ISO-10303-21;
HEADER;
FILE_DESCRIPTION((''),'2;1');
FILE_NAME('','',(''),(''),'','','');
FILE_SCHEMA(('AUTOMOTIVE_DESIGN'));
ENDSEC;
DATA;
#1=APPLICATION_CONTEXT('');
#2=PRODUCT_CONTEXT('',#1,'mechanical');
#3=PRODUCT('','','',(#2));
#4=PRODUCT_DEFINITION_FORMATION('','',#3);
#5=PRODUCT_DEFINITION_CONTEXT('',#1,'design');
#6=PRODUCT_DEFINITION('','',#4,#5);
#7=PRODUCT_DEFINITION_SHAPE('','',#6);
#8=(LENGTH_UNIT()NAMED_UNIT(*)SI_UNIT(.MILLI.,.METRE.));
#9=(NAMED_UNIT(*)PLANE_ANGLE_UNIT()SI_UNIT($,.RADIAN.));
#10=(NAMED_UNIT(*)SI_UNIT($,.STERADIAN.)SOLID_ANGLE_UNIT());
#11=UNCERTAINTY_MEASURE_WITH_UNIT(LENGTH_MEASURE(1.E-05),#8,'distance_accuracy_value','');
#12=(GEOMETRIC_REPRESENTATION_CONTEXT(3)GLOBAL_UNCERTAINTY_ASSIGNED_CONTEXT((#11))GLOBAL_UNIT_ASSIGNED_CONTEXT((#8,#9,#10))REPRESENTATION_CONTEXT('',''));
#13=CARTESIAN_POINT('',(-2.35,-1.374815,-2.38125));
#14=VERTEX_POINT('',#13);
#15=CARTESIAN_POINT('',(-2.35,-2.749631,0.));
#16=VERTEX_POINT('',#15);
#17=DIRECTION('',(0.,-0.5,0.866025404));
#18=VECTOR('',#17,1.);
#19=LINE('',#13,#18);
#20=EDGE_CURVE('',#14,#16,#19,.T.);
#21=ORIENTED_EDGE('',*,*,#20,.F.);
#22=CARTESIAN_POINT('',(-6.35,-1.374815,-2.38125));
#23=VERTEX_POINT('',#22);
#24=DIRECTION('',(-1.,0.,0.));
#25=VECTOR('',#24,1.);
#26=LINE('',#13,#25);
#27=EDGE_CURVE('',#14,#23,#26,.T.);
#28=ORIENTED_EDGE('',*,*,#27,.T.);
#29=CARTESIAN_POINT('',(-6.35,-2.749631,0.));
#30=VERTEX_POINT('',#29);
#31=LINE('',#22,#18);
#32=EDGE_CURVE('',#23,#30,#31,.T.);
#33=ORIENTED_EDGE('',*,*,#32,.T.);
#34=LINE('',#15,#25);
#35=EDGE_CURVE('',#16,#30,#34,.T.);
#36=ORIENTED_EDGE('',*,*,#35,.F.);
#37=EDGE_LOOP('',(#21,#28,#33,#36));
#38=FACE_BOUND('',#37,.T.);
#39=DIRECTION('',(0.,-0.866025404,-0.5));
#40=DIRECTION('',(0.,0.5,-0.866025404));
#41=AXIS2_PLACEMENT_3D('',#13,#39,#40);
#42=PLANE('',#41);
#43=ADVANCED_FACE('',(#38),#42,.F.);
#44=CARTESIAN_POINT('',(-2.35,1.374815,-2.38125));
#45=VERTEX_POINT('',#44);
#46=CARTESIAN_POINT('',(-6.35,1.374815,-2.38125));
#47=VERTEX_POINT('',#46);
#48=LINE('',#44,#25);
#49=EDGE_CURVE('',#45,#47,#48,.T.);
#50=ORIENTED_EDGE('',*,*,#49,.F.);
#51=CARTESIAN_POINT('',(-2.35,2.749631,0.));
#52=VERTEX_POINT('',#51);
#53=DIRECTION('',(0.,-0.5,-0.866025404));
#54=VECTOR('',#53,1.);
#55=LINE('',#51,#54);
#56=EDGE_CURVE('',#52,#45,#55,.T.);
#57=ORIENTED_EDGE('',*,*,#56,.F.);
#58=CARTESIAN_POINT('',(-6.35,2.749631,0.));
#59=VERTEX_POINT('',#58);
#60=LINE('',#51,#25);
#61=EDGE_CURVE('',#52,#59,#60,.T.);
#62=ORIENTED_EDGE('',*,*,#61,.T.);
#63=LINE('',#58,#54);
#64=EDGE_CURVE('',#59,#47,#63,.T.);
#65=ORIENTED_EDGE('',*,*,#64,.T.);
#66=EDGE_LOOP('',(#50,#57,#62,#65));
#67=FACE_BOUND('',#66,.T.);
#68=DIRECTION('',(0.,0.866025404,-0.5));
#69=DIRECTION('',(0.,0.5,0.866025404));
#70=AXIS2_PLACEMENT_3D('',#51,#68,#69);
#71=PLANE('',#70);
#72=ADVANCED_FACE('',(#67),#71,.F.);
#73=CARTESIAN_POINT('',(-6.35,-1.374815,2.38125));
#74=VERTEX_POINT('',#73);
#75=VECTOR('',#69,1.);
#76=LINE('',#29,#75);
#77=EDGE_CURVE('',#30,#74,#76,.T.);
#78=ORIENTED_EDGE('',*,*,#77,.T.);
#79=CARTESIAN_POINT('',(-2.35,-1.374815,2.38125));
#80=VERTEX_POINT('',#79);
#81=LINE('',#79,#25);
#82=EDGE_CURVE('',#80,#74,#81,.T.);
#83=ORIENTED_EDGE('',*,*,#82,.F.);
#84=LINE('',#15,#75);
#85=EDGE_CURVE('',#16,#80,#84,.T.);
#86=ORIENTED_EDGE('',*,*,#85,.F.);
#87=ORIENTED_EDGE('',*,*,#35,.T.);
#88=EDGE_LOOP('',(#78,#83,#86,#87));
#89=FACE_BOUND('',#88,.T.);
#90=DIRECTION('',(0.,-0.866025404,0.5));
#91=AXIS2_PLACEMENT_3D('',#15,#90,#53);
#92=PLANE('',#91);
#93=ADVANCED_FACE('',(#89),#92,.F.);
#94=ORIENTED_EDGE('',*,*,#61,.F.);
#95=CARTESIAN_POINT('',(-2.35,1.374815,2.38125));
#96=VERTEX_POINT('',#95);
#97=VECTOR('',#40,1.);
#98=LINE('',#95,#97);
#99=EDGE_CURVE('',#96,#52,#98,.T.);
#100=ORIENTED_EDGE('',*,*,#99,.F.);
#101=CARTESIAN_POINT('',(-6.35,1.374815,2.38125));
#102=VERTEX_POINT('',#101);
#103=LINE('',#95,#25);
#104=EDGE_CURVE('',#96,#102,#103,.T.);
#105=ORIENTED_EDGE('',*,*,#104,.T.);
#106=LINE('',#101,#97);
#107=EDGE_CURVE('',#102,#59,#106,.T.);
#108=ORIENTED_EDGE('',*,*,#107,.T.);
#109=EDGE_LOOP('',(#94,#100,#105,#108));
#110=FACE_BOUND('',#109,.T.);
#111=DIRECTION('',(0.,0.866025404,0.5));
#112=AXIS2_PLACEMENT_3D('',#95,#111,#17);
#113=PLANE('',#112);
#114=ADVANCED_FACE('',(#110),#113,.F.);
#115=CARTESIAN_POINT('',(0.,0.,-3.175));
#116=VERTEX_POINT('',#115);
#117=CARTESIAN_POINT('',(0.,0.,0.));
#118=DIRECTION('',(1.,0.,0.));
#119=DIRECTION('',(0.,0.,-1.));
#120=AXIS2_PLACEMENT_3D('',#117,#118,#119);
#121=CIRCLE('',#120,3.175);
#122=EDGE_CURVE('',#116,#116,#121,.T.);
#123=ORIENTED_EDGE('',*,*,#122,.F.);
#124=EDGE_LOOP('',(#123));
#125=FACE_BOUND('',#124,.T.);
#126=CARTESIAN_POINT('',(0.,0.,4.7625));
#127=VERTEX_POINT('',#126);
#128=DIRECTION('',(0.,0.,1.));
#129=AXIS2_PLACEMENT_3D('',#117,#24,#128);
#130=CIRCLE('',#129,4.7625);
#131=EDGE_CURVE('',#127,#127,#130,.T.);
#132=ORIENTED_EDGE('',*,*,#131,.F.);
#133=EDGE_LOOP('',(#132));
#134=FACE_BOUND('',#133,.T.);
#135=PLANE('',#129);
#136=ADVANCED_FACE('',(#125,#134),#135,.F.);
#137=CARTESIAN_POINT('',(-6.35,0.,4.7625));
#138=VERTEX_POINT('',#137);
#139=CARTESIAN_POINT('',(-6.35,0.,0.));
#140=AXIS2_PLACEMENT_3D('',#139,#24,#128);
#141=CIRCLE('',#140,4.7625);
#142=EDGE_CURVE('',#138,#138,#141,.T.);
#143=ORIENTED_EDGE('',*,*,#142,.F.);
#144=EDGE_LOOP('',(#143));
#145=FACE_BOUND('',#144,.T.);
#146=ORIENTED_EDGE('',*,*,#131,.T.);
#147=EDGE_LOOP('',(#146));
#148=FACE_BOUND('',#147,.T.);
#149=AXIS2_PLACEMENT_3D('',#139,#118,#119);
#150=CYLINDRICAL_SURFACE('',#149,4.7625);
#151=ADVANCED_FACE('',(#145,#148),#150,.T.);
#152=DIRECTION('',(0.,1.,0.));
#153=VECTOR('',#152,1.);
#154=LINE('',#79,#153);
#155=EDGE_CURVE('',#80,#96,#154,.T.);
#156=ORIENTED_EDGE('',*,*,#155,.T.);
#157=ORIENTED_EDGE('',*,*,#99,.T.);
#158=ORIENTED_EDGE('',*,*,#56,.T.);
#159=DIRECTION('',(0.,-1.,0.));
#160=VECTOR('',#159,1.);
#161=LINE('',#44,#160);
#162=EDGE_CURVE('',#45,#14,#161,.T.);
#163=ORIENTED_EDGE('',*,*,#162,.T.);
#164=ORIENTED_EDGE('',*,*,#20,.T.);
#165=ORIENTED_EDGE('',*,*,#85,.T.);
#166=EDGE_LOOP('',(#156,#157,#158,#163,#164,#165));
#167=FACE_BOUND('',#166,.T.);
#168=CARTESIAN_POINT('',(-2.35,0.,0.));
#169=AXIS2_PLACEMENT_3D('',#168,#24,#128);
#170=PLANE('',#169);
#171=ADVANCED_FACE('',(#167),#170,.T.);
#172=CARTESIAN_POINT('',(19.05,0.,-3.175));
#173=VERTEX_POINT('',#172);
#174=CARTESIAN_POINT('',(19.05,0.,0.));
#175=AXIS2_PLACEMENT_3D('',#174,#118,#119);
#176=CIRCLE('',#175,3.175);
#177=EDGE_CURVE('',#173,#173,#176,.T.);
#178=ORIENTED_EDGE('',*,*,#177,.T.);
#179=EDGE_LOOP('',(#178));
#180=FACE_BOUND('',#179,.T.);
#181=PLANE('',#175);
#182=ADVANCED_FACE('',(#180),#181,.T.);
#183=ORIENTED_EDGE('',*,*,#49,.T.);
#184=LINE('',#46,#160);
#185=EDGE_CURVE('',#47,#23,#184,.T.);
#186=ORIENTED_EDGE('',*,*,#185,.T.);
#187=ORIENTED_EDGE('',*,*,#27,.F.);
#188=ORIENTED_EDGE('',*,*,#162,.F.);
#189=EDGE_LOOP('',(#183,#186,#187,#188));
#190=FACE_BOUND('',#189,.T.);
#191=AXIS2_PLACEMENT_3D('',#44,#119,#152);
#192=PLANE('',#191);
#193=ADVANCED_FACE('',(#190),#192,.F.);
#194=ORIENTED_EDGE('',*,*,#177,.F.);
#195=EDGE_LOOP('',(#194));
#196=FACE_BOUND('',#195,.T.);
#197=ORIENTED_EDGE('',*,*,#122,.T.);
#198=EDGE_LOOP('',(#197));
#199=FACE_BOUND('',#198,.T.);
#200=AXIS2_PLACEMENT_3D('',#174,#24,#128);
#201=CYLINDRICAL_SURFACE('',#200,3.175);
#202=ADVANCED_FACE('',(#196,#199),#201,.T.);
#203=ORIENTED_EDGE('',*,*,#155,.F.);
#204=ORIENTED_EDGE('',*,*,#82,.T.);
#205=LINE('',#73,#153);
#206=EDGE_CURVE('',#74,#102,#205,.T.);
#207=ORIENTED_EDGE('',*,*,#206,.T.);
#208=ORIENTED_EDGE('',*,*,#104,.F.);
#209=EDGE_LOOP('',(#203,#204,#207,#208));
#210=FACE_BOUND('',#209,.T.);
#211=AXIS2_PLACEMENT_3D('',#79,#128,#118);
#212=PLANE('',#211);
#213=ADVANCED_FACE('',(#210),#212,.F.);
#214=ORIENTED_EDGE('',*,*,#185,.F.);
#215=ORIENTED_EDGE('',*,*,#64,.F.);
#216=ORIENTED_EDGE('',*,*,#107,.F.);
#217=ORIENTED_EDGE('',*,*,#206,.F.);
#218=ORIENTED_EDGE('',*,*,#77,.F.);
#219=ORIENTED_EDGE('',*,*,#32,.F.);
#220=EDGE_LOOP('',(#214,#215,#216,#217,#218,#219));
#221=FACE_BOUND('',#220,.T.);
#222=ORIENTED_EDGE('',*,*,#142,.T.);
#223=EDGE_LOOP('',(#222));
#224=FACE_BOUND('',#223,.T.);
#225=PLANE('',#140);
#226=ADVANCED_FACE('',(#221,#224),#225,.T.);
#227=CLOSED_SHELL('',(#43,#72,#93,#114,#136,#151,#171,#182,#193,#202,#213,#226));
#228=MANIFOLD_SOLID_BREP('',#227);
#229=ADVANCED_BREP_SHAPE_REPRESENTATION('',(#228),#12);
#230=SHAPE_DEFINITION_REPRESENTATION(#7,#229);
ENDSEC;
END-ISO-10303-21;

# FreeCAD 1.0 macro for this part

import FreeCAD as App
import Part
import Sketcher
Q = App.Units.Quantity


def add_polygon(sketch, points):
    """Adds a closed chain of lines whose ends are joined by coincident constraints."""
    first, n = sketch.GeometryCount, len(points)
    for a, b in zip(points, points[1:] + points[:1]):
        sketch.addGeometry(Part.LineSegment(App.Vector(*a, 0), App.Vector(*b, 0)), False)
    for i in range(n):
        sketch.addConstraint(Sketcher.Constraint("Coincident", first + i, 2, first + (i + 1) % n, 1))

doc = App.newDocument("Part")
body = doc.addObject("PartDesign::Body", "Body")

# Sketch on YZ plane
sketch1 = body.newObject("Sketcher::SketchObject", "Sketch")
sketch1.AttachmentSupport = (doc.getObject("YZ_Plane"), [""])
sketch1.MapMode = "FlatFace"
sketch1.addGeometry(Part.Circle(App.Vector(0, 0, 0), App.Vector(0, 0, 1), 3.2), False)
sketch1.addConstraint(Sketcher.Constraint("Coincident", 0, 3, -1, 1))
sketch1.addConstraint(Sketcher.Constraint("Diameter", 0, Q("0.25 in")))
pad1 = body.newObject("PartDesign::Pad", "Pad")
pad1.Profile = sketch1
pad1.Length = Q("0.75 in")

# Sketch on YZ plane
sketch2 = body.newObject("Sketcher::SketchObject", "Sketch001")
sketch2.AttachmentSupport = (doc.getObject("YZ_Plane"), [""])
sketch2.MapMode = "FlatFace"
sketch2.addGeometry(Part.Circle(App.Vector(0, 0, 0), App.Vector(0, 0, 1), 4.8), False)
sketch2.addConstraint(Sketcher.Constraint("Coincident", 0, 3, -1, 1))
sketch2.addConstraint(Sketcher.Constraint("Diameter", 0, Q("0.375 in")))
pad2 = body.newObject("PartDesign::Pad", "Pad001")
pad2.Profile = sketch2
pad2.Length = Q("0.25 in")
pad2.Reversed = True

# Sketch on YZ plane
sketch3 = body.newObject("Sketcher::SketchObject", "Sketch002")
sketch3.AttachmentSupport = (doc.getObject("YZ_Plane"), [""])
sketch3.MapMode = "FlatFace"
sketch3.AttachmentOffset = App.Placement(App.Vector(0, 0, -0.25 * 25.4), App.Rotation())
add_polygon(sketch3, [(-1.4, 2.4), (1.4, 2.4), (2.7, 0), (1.4, -2.4), (-1.4, -2.4), (-2.7, 0)])  # lines 0-5
sketch3.addConstraint(Sketcher.Constraint("Horizontal", 0))
sketch3.addConstraint(Sketcher.Constraint("Horizontal", 3))
sketch3.addConstraint(Sketcher.Constraint("Symmetric", 0, 2, 3, 2, -1, 1))
sketch3.addConstraint(Sketcher.Constraint("Symmetric", 1, 2, 4, 2, -1, 1))
sketch3.addConstraint(Sketcher.Constraint("PointOnObject", 1, 2, -1))
sketch3.addConstraint(Sketcher.Constraint("Parallel", 2, 5))
sketch3.addConstraint(Sketcher.Constraint("Vertical", 0, 2, 2, 2))
sketch3.addConstraint(Sketcher.Constraint("Angle", 1, Q("-60 deg")))
sketch3.addConstraint(Sketcher.Constraint("DistanceY", -1, 1, 0, 2, Q("0.09375 in")))
sketch3.addConstraint(Sketcher.Constraint("DistanceX", 0, 1, 0, 2, Q("2.749631 mm")))
pocket1 = body.newObject("PartDesign::Pocket", "Pocket")
pocket1.Profile = sketch3
pocket1.Length = 4
pocket1.Reversed = True

doc.recompute()
